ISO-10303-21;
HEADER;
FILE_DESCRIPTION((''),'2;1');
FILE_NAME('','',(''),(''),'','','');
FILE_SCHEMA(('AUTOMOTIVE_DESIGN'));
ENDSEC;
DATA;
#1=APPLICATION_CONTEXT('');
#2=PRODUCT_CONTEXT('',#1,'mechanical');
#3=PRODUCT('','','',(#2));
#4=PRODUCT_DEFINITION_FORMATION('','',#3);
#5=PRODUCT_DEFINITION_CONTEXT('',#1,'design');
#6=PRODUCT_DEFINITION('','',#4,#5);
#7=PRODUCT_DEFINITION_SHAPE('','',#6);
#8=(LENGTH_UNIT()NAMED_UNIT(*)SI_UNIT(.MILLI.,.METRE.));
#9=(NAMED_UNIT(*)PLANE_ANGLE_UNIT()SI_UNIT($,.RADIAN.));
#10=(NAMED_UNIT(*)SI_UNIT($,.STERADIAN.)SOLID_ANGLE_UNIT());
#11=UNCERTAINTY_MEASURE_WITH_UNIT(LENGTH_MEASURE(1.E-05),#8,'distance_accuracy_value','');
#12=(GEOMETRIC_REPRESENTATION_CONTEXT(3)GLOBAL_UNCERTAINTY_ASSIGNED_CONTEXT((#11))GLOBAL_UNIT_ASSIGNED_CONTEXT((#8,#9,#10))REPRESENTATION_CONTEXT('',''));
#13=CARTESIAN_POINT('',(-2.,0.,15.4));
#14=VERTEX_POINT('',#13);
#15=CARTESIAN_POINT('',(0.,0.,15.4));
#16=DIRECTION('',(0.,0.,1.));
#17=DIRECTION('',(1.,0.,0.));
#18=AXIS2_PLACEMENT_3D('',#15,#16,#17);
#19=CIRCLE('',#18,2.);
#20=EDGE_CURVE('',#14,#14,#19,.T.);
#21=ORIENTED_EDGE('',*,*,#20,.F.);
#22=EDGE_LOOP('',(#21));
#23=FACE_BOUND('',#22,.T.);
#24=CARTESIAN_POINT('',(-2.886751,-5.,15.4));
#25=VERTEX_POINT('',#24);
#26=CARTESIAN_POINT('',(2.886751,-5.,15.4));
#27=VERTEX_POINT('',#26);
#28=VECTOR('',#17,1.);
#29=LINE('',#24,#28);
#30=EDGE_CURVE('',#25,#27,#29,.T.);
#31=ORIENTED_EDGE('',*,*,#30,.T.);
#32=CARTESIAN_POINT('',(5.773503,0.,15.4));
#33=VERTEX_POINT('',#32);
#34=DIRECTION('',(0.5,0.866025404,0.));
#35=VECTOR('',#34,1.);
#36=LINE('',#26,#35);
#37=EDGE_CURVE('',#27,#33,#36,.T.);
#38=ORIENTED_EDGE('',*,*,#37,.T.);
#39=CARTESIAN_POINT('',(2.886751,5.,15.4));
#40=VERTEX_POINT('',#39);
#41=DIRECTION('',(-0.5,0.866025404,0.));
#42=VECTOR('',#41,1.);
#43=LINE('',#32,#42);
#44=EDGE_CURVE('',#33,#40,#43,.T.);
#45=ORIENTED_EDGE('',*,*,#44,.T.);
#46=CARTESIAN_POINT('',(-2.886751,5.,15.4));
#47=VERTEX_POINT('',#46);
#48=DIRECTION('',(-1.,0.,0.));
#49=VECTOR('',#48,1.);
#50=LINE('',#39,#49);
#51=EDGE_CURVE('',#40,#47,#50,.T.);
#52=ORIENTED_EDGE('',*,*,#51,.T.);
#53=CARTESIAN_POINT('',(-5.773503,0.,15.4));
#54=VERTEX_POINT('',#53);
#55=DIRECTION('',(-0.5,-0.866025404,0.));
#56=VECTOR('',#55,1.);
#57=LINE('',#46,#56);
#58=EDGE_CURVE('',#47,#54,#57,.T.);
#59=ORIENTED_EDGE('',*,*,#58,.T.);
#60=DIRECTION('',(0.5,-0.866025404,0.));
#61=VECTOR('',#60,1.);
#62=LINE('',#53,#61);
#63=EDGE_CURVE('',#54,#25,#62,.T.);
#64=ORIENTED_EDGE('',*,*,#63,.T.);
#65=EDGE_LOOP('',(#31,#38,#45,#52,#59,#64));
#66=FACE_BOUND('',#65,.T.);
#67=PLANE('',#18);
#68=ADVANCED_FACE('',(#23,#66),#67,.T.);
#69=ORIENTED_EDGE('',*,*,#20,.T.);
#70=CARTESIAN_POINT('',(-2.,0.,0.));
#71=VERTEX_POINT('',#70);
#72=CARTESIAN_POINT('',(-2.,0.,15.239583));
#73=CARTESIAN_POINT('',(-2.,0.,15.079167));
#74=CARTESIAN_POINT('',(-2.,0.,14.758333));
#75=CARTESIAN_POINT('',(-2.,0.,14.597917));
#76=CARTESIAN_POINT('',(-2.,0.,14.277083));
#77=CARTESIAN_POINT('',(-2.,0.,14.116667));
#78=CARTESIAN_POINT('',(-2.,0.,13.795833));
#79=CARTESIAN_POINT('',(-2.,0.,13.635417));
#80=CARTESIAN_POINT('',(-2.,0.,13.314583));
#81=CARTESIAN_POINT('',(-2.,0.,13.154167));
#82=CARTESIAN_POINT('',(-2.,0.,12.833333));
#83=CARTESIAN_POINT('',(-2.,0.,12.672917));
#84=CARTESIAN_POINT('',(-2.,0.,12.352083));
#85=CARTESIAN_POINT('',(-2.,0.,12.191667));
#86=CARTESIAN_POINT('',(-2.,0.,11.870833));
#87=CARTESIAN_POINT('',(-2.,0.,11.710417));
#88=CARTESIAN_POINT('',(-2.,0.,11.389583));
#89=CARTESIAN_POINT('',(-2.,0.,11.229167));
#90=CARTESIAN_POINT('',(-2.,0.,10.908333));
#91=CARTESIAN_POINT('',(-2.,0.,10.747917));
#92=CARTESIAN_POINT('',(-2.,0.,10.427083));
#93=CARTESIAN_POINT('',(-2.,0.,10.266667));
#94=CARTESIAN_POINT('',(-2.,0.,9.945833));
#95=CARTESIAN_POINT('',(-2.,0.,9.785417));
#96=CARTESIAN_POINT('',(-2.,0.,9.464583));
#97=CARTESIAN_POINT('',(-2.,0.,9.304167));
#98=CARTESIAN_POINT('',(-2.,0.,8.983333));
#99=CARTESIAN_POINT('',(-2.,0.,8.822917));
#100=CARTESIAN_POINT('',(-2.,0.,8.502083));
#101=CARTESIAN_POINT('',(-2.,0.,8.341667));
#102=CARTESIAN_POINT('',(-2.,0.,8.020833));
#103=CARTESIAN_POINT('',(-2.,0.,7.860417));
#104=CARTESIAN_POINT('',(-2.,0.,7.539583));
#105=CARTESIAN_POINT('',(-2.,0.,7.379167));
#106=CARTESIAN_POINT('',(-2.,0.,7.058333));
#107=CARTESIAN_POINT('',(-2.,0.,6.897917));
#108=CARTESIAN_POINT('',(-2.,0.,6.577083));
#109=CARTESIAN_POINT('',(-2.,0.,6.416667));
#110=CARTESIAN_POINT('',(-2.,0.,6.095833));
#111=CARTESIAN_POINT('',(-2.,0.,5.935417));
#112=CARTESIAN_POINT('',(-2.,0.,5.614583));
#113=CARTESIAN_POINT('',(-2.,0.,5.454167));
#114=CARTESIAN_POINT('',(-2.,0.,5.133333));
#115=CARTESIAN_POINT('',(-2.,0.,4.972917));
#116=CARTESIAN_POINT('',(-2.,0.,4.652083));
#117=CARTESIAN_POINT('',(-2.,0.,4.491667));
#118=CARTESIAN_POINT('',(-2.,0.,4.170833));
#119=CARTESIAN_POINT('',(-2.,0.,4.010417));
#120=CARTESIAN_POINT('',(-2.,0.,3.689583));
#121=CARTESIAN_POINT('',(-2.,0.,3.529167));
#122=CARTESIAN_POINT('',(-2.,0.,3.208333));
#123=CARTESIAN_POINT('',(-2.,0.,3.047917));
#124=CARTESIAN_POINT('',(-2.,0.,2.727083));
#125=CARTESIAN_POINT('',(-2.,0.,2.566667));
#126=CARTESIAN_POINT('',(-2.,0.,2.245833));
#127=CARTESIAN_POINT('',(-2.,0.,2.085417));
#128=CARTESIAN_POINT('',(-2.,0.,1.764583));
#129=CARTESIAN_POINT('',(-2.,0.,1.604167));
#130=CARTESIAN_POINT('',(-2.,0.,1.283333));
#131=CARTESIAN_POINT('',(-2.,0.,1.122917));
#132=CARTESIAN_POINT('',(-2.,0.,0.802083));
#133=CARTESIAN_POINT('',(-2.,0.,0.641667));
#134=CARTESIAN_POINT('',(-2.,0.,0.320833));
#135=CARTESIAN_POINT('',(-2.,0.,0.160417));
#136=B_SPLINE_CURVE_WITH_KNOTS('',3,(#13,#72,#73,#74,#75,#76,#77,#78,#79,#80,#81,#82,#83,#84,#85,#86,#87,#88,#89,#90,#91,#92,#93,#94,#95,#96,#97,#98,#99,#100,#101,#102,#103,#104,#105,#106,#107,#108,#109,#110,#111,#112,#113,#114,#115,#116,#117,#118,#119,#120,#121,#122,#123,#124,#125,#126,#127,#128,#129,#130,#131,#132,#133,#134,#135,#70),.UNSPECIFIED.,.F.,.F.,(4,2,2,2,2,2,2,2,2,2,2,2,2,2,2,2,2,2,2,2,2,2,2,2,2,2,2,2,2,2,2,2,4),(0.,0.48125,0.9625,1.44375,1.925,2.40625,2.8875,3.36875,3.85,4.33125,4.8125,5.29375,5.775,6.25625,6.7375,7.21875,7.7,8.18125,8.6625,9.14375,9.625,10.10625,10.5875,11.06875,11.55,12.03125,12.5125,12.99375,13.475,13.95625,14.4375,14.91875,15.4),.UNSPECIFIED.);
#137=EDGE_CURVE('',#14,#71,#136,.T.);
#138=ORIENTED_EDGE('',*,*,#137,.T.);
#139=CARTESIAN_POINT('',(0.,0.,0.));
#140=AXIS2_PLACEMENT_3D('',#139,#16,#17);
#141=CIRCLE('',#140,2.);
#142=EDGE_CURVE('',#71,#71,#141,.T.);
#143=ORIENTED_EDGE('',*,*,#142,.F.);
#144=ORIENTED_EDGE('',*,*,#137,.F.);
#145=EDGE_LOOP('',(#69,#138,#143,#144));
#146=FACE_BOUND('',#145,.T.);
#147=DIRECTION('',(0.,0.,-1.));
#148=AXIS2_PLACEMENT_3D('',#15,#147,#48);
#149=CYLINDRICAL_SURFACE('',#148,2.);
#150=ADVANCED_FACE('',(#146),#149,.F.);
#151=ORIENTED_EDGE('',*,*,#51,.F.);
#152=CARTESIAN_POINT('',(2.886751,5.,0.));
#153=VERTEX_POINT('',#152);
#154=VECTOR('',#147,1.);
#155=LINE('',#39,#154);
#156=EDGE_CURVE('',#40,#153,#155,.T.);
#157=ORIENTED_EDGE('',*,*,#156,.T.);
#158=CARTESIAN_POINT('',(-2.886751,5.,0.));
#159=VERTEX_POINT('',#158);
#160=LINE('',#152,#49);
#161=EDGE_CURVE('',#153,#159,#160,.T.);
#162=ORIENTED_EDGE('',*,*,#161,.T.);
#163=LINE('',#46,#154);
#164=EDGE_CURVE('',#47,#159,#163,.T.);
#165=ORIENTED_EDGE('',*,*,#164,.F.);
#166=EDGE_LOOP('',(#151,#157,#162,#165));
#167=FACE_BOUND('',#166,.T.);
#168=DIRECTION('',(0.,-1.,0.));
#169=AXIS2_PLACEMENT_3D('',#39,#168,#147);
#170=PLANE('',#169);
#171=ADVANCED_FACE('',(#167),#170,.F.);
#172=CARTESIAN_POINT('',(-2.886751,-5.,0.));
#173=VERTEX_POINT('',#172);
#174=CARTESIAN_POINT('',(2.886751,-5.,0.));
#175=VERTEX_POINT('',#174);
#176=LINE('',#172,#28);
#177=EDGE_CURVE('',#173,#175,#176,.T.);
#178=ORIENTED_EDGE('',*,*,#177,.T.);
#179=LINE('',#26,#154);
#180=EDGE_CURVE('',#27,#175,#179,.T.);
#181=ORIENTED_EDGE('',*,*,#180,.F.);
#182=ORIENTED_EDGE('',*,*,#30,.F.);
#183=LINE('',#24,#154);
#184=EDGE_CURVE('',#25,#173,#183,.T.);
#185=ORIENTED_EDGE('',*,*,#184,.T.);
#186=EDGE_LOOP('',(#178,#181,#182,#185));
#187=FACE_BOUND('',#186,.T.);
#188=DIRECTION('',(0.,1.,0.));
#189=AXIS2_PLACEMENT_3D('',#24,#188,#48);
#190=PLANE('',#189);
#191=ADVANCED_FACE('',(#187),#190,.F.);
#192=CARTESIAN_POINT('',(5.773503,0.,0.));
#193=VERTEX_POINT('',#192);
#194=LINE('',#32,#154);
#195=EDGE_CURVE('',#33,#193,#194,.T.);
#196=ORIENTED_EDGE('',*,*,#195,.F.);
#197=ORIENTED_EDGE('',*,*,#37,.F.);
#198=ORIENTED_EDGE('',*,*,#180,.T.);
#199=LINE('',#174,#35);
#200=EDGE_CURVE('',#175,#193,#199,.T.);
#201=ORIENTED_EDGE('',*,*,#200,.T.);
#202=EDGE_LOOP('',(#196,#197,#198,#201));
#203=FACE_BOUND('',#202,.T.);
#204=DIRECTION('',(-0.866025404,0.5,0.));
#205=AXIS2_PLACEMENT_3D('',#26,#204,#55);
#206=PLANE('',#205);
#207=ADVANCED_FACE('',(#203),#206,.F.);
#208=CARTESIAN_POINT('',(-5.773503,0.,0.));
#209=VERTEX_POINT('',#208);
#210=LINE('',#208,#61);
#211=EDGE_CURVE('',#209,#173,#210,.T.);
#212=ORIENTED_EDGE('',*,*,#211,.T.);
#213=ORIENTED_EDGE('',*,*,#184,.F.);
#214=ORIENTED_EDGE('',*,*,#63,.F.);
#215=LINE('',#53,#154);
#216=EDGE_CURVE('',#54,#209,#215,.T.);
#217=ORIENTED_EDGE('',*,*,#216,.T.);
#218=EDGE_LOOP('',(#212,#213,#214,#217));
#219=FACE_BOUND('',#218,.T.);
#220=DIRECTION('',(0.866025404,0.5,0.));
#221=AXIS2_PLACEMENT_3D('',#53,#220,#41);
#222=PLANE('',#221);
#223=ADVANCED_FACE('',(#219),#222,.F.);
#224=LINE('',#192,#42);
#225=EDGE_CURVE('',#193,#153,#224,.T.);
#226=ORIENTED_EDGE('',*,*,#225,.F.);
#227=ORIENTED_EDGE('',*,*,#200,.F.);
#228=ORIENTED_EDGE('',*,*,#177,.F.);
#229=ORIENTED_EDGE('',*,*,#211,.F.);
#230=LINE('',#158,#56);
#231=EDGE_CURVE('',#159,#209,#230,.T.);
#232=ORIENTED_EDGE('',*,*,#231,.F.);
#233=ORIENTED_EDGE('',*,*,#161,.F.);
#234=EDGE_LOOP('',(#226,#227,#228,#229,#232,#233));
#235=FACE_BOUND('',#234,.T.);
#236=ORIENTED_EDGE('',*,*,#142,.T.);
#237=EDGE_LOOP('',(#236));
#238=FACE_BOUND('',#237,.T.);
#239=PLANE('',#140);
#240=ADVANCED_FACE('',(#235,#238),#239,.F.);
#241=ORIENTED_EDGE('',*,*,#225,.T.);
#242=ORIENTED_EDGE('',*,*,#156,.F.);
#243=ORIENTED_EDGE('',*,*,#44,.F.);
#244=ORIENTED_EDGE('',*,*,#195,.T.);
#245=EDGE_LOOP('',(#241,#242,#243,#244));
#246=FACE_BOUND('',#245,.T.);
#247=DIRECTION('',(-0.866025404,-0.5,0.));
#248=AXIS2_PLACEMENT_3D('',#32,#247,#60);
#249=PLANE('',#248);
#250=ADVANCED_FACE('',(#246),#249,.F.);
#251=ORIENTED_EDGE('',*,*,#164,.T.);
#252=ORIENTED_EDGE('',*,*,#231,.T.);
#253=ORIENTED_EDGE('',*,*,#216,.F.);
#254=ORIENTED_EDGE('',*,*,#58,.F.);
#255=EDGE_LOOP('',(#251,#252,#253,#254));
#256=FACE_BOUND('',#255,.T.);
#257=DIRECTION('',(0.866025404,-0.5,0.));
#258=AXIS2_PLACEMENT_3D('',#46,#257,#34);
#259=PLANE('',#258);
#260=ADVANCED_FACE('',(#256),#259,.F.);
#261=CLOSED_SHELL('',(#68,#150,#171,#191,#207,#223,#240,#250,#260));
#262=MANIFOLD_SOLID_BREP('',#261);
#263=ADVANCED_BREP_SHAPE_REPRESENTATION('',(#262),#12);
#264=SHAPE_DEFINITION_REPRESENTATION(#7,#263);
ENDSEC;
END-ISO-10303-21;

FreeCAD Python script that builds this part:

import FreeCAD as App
import Part
import Sketcher

V = App.Vector
Q = App.Units.Quantity

doc = App.newDocument("Part")
body = doc.addObject("PartDesign::Body", "Body")

# Sketch on XY plane
sketch1 = body.newObject("Sketcher::SketchObject", "Sketch")
sketch1.AttachmentSupport = (doc.getObject("XY_Plane"), [""])
sketch1.MapMode = "FlatFace"
sketch1.addGeometry([
    Part.LineSegment(V(2.9, -5, 0), V(5.8, 0, 0)),  # 0
    Part.LineSegment(V(5.8, 0, 0), V(2.9, 5, 0)),  # 1
    Part.LineSegment(V(2.9, 5, 0), V(-2.9, 5, 0)),  # 2
    Part.LineSegment(V(-2.9, 5, 0), V(-5.8, 0, 0)),  # 3
    Part.LineSegment(V(-5.8, 0, 0), V(-2.9, -5, 0)),  # 4
    Part.LineSegment(V(-2.9, -5, 0), V(2.9, -5, 0)),  # 5
    Part.Circle(V(0, 0, 0), V(0, 0, 1), 2),  # 6
], False)
sketch1.addConstraint([
    Sketcher.Constraint("Coincident", 0, 2, 1, 1),
    Sketcher.Constraint("Coincident", 1, 2, 2, 1),
    Sketcher.Constraint("Coincident", 2, 2, 3, 1),
    Sketcher.Constraint("Coincident", 3, 2, 4, 1),
    Sketcher.Constraint("Coincident", 4, 2, 5, 1),
    Sketcher.Constraint("Coincident", 5, 2, 0, 1),
    Sketcher.Constraint("Horizontal", 2),
    Sketcher.Constraint("Horizontal", 5),
    Sketcher.Constraint("Coincident", 6, 3, -1, 1),
    Sketcher.Constraint("Symmetric", 0, 2, 3, 2, -1, 1),
    Sketcher.Constraint("Symmetric", 1, 2, 4, 2, -1, 1),
    Sketcher.Constraint("PointOnObject", 0, 2, -1),
    Sketcher.Constraint("Parallel", 0, 3),
    Sketcher.Constraint("Vertical", 2, 2, 4, 2),
    Sketcher.Constraint("Diameter", 6, Q("4 mm")),
    Sketcher.Constraint("Angle", 0, Q("60 deg")),
    Sketcher.Constraint("DistanceY", -1, 1, 1, 2, Q("5 mm")),
    Sketcher.Constraint("DistanceX", 2, 2, 2, 1, Q("5.773503 mm")),
])
pad1 = body.newObject("PartDesign::Pad", "Pad")
pad1.Profile = sketch1
pad1.Length = 15.4

doc.recompute()
